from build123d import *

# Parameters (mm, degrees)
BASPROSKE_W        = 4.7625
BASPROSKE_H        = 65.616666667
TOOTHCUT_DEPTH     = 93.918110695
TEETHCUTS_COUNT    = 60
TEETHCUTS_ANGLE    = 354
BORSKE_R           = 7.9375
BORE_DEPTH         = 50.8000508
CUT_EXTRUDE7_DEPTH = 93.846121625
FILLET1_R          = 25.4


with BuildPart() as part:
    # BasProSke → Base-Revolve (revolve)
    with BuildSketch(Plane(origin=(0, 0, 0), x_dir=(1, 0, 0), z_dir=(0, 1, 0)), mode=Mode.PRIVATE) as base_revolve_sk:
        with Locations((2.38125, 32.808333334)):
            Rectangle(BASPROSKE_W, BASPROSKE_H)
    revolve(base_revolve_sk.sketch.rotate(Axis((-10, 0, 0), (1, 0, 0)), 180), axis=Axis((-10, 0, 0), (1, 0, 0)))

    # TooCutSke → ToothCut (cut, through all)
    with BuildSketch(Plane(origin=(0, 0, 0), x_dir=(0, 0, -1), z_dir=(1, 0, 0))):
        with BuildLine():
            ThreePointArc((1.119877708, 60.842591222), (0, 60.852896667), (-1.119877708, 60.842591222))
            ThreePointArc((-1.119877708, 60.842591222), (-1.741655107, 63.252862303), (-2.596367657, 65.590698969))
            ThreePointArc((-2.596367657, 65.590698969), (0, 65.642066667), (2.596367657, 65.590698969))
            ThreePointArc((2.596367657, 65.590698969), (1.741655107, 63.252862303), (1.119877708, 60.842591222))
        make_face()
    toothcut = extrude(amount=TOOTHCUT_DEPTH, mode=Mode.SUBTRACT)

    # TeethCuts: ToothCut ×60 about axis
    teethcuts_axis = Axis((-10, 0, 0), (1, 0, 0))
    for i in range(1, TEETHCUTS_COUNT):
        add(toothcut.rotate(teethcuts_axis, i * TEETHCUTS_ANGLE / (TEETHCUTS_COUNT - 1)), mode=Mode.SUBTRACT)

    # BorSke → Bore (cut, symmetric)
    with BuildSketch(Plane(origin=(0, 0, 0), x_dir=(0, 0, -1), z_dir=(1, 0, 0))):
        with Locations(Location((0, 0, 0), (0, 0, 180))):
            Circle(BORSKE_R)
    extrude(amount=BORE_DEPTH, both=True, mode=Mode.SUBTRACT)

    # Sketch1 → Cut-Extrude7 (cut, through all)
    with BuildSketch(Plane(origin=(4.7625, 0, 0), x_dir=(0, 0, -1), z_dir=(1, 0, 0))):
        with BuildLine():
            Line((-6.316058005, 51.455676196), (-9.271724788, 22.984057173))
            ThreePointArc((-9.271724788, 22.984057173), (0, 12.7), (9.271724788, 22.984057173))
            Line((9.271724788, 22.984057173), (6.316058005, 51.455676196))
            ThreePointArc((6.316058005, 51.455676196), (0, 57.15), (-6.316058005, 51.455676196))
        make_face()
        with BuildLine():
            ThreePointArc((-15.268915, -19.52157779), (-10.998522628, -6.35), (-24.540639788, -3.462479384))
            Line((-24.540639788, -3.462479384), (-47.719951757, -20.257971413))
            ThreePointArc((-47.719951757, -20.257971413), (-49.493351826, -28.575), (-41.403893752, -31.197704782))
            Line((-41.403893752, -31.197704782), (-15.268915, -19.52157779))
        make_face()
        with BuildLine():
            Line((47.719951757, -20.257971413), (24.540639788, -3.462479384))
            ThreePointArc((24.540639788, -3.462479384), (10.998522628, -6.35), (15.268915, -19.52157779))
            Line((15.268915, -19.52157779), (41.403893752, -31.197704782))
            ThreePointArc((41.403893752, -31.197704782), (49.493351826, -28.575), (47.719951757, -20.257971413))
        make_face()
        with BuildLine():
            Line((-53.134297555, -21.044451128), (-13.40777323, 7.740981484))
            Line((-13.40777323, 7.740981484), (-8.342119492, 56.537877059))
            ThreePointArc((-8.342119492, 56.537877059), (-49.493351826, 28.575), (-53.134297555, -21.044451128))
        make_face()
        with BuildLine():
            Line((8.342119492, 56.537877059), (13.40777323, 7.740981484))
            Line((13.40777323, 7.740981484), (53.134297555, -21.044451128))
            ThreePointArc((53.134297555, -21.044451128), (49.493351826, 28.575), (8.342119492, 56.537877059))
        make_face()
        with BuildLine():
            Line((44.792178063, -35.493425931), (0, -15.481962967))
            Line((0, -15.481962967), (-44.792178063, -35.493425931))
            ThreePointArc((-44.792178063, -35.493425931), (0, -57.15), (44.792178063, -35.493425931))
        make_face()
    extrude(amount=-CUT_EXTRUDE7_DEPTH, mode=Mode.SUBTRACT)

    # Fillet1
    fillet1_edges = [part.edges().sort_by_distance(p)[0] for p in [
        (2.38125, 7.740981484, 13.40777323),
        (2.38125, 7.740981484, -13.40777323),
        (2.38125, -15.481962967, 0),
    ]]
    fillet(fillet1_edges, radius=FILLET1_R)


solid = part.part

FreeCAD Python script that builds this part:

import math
import FreeCAD as App
import Part
import Sketcher
Q = App.Units.Quantity


def edges_at(feature, points):
    """Names of the edges that pass closest to the given points."""
    edges = feature.Shape.Edges
    near = lambda p: min(range(len(edges)), key=lambda i: edges[i].distToShape(Part.Vertex(*p))[0])
    return sorted({f"Edge{near(p) + 1}" for p in points})

doc = App.newDocument("Part")
params = doc.addObject("Spreadsheet::Sheet", "Params")
for row, (alias, value) in enumerate([
    ("sketch1_width", "0.1875 in"),
    ("revolution_angle", "360 deg"),
    ("sketch2_radius", "1 in"),
    ("sketch3_diameter", "0.625 in"),
    ("pocket2_length", "101.600102 mm"),
    ("sketch4_radius", "0.25 in"),
    ("sketch4_radius2", "2.25 in"),
    ("fillet_radius", "1 in"),
], start=1):
    params.set(f"A{row}", alias)
    params.set(f"B{row}", "=" + value)
    params.setAlias(f"B{row}", alias)

body = doc.addObject("PartDesign::Body", "Body")

# Sketch on XZ plane
sketch1 = body.newObject("Sketcher::SketchObject", "Sketch")
sketch1.AttachmentSupport = (doc.getObject("XZ_Plane"), [""])
sketch1.MapMode = "FlatFace"
sketch1.addGeometry(Part.LineSegment(App.Vector(0, -65.6, 0), App.Vector(0, 0, 0)), False)
sketch1.addGeometry(Part.LineSegment(App.Vector(0, 0, 0), App.Vector(4.8, 0, 0)), False)
sketch1.addGeometry(Part.LineSegment(App.Vector(4.8, 0, 0), App.Vector(4.8, -65.6, 0)), False)
sketch1.addGeometry(Part.LineSegment(App.Vector(4.8, -65.6, 0), App.Vector(0, -65.6, 0)), False)
sketch1.addConstraint(Sketcher.Constraint("Coincident", 0, 2, 1, 1))
sketch1.addConstraint(Sketcher.Constraint("Coincident", 1, 2, 2, 1))
sketch1.addConstraint(Sketcher.Constraint("Coincident", 2, 2, 3, 1))
sketch1.addConstraint(Sketcher.Constraint("Coincident", 3, 2, 0, 1))
sketch1.addConstraint(Sketcher.Constraint("Vertical", 0))
sketch1.addConstraint(Sketcher.Constraint("Horizontal", 1))
sketch1.addConstraint(Sketcher.Constraint("Vertical", 2))
sketch1.addConstraint(Sketcher.Constraint("Horizontal", 3))
sketch1.addConstraint(Sketcher.Constraint("Coincident", 0, 2, -1, 1))
sketch1.addConstraint(Sketcher.Constraint("DistanceX", 1, 1, 1, 2, Q("0.1875 in")))
sketch1.addConstraint(Sketcher.Constraint("DistanceY", 0, 1, 0, 2, 65.616667))
sketch1.setExpression("Constraints[9]", "Params.sketch1_width")
revolution = body.newObject("PartDesign::Revolution", "Revolution")
revolution.Profile = sketch1
revolution.ReferenceAxis = (sketch1, ["H_Axis"])
revolution.setExpression("Angle", "Params.revolution_angle")

# Sketch on YZ plane
sketch2 = body.newObject("Sketcher::SketchObject", "Sketch001")
sketch2.AttachmentSupport = (doc.getObject("YZ_Plane"), [""])
sketch2.MapMode = "FlatFace"
sketch2.addGeometry(Part.ArcOfCircle(Part.Circle(App.Vector(0, 0, 0), App.Vector(0, 0, 1), 60.9), math.radians(-1.05), math.radians(1.05)), False)
sketch2.addGeometry(Part.ArcOfCircle(Part.Circle(App.Vector(55.7, -26, 0), App.Vector(0, 0, 1), 25.4), math.radians(67.11), math.radians(78.34)), False)
sketch2.addGeometry(Part.ArcOfCircle(Part.Circle(App.Vector(0, 0, 0), App.Vector(0, 0, 1), 65.6), math.radians(-2.27), math.radians(2.27)), False)
sketch2.addGeometry(Part.ArcOfCircle(Part.Circle(App.Vector(55.7, 26, 0), App.Vector(0, 0, 1), 25.4), math.radians(-78.34), math.radians(-67.11)), False)
sketch2.addConstraint(Sketcher.Constraint("Coincident", 0, 1, 1, 2))
sketch2.addConstraint(Sketcher.Constraint("Coincident", 1, 1, 2, 1))
sketch2.addConstraint(Sketcher.Constraint("Coincident", 2, 2, 3, 2))
sketch2.addConstraint(Sketcher.Constraint("Coincident", 3, 1, 0, 2))
sketch2.addConstraint(Sketcher.Constraint("Coincident", 0, 3, -1, 1))
sketch2.addConstraint(Sketcher.Constraint("Coincident", 2, 3, -1, 1))
sketch2.addConstraint(Sketcher.Constraint("Equal", 1, 3))
sketch2.addConstraint(Sketcher.Constraint("Symmetric", 1, 3, 3, 3, -1))
sketch2.addConstraint(Sketcher.Constraint("Radius", 1, Q("1 in")))
sketch2.addConstraint(Sketcher.Constraint("Radius", 0, 60.852893))
sketch2.addConstraint(Sketcher.Constraint("Radius", 2, 65.642066))
sketch2.addConstraint(Sketcher.Constraint("DistanceX", -1, 1, 2, 2, 65.590699))
sketch2.addConstraint(Sketcher.Constraint("DistanceX", -1, 1, 1, 3, 55.710628))
sketch2.setExpression("Constraints[8]", "Params.sketch2_radius")
pocket1 = body.newObject("PartDesign::Pocket", "Pocket")
pocket1.Profile = sketch2
pocket1.Type = "ThroughAll"
pocket1.Reversed = True
doc.recompute()

polarpattern = body.newObject("PartDesign::PolarPattern", "PolarPattern")
polarpattern.Originals = [pocket1]
polarpattern.Axis = (doc.getObject("X_Axis"), [""])
polarpattern.Angle = 360
polarpattern.Occurrences = 60
body.Tip = polarpattern

# Sketch on YZ plane
sketch3 = body.newObject("Sketcher::SketchObject", "Sketch002")
sketch3.AttachmentSupport = (doc.getObject("YZ_Plane"), [""])
sketch3.MapMode = "FlatFace"
sketch3.addGeometry(Part.Circle(App.Vector(0, 0, 0), App.Vector(0, 0, 1), 8), False)
sketch3.addConstraint(Sketcher.Constraint("Coincident", 0, 3, -1, 1))
sketch3.addConstraint(Sketcher.Constraint("Diameter", 0, Q("0.625 in")))
sketch3.setExpression("Constraints[1]", "Params.sketch3_diameter")
pocket2 = body.newObject("PartDesign::Pocket", "Pocket001")
pocket2.Profile = sketch3
pocket2.setExpression("Length", "Params.pocket2_length")
pocket2.Midplane = True

# Sketch on YZ plane
sketch4 = body.newObject("Sketcher::SketchObject", "Sketch003")
sketch4.AttachmentSupport = (doc.getObject("YZ_Plane"), [""])
sketch4.MapMode = "FlatFace"
sketch4.AttachmentOffset = App.Placement(App.Vector(0, 0, 0.1875 * 25.4), App.Rotation())
sketch4.addGeometry(Part.LineSegment(App.Vector(51, 6, 0), App.Vector(23, 9, 0)), False)
sketch4.addGeometry(Part.ArcOfCircle(Part.Circle(App.Vector(22, 0, 0), App.Vector(0, 0, 1), 9), math.radians(84), math.radians(276)), False)
sketch4.addGeometry(Part.LineSegment(App.Vector(23, -9, 0), App.Vector(51, -6, 0)), False)
sketch4.addGeometry(Part.ArcOfCircle(Part.Circle(App.Vector(51, 0, 0), App.Vector(0, 0, 1), 6), math.radians(-84), math.radians(84)), False)
sketch4.addGeometry(Part.ArcOfCircle(Part.Circle(App.Vector(-11, 19, 0), App.Vector(0, 0, 1), 9), math.radians(-156), math.radians(36)), False)
sketch4.addGeometry(Part.LineSegment(App.Vector(-3, 25, 0), App.Vector(-20, 48, 0)), False)
sketch4.addGeometry(Part.ArcOfCircle(Part.Circle(App.Vector(-25, 44, 0), App.Vector(0, 0, 1), 6), math.radians(36), math.radians(204)), False)
sketch4.addGeometry(Part.LineSegment(App.Vector(-31, 41, 0), App.Vector(-20, 15, 0)), False)
sketch4.addGeometry(Part.LineSegment(App.Vector(-20, -48, 0), App.Vector(-3, -25, 0)), False)
sketch4.addGeometry(Part.ArcOfCircle(Part.Circle(App.Vector(-11, -19, 0), App.Vector(0, 0, 1), 9), math.radians(-36), math.radians(156)), False)
sketch4.addGeometry(Part.LineSegment(App.Vector(-20, -15, 0), App.Vector(-31, -41, 0)), False)
sketch4.addGeometry(Part.ArcOfCircle(Part.Circle(App.Vector(-25, -44, 0), App.Vector(0, 0, 1), 6), math.radians(156), math.radians(324)), False)
sketch4.addGeometry(Part.LineSegment(App.Vector(-21, 53, 0), App.Vector(8, 13, 0)), False)
sketch4.addGeometry(Part.LineSegment(App.Vector(8, 13, 0), App.Vector(57, 8, 0)), False)
sketch4.addGeometry(Part.ArcOfCircle(Part.Circle(App.Vector(0, 0, 0), App.Vector(0, 0, 1), 57), math.radians(8), math.radians(112)), False)
sketch4.addGeometry(Part.LineSegment(App.Vector(57, -8, 0), App.Vector(8, -13, 0)), False)
sketch4.addGeometry(Part.LineSegment(App.Vector(8, -13, 0), App.Vector(-21, -53, 0)), False)
sketch4.addGeometry(Part.ArcOfCircle(Part.Circle(App.Vector(0, 0, 0), App.Vector(0, 0, 1), 57), math.radians(-112), math.radians(-8)), False)
sketch4.addGeometry(Part.LineSegment(App.Vector(-35, -45, 0), App.Vector(-15, 0, 0)), False)
sketch4.addGeometry(Part.LineSegment(App.Vector(-15, 0, 0), App.Vector(-35, 45, 0)), False)
sketch4.addGeometry(Part.ArcOfCircle(Part.Circle(App.Vector(0, 0, 0), App.Vector(0, 0, 1), 57), math.radians(128), math.radians(232)), False)
sketch4.addConstraint(Sketcher.Constraint("Tangent", 0, 2, 1, 1))
sketch4.addConstraint(Sketcher.Constraint("Tangent", 1, 2, 2, 1))
sketch4.addConstraint(Sketcher.Constraint("Tangent", 2, 2, 3, 1))
sketch4.addConstraint(Sketcher.Constraint("Tangent", 3, 2, 0, 1))
sketch4.addConstraint(Sketcher.Constraint("Tangent", 4, 2, 5, 1))
sketch4.addConstraint(Sketcher.Constraint("Tangent", 5, 2, 6, 1))
sketch4.addConstraint(Sketcher.Constraint("Tangent", 6, 2, 7, 1))
sketch4.addConstraint(Sketcher.Constraint("Tangent", 7, 2, 4, 1))
sketch4.addConstraint(Sketcher.Constraint("Tangent", 8, 2, 9, 1))
sketch4.addConstraint(Sketcher.Constraint("Tangent", 9, 2, 10, 1))
sketch4.addConstraint(Sketcher.Constraint("Tangent", 10, 2, 11, 1))
sketch4.addConstraint(Sketcher.Constraint("Tangent", 11, 2, 8, 1))
sketch4.addConstraint(Sketcher.Constraint("Coincident", 12, 2, 13, 1))
sketch4.addConstraint(Sketcher.Constraint("Coincident", 13, 2, 14, 1))
sketch4.addConstraint(Sketcher.Constraint("Coincident", 14, 2, 12, 1))
sketch4.addConstraint(Sketcher.Constraint("Coincident", 15, 2, 16, 1))
sketch4.addConstraint(Sketcher.Constraint("Coincident", 16, 2, 17, 1))
sketch4.addConstraint(Sketcher.Constraint("Coincident", 17, 2, 15, 1))
sketch4.addConstraint(Sketcher.Constraint("Coincident", 18, 2, 19, 1))
sketch4.addConstraint(Sketcher.Constraint("Coincident", 19, 2, 20, 1))
sketch4.addConstraint(Sketcher.Constraint("Coincident", 20, 2, 18, 1))
sketch4.addConstraint(Sketcher.Constraint("Coincident", 14, 3, -1, 1))
sketch4.addConstraint(Sketcher.Constraint("Coincident", 17, 3, -1, 1))
sketch4.addConstraint(Sketcher.Constraint("Coincident", 20, 3, -1, 1))
sketch4.addConstraint(Sketcher.Constraint("Equal", 1, 4))
sketch4.addConstraint(Sketcher.Constraint("Equal", 3, 6))
sketch4.addConstraint(Sketcher.Constraint("Equal", 4, 9))
sketch4.addConstraint(Sketcher.Constraint("Equal", 6, 11))
sketch4.addConstraint(Sketcher.Constraint("Equal", 14, 17))
sketch4.addConstraint(Sketcher.Constraint("Equal", 17, 20))
sketch4.addConstraint(Sketcher.Constraint("Symmetric", 4, 3, 9, 3, -1))
sketch4.addConstraint(Sketcher.Constraint("Symmetric", 6, 3, 11, 3, -1))
sketch4.addConstraint(Sketcher.Constraint("Symmetric", 0, 2, 1, 2, -1))
sketch4.addConstraint(Sketcher.Constraint("Symmetric", 12, 2, 15, 2, -1))
sketch4.addConstraint(Sketcher.Constraint("PointOnObject", 18, 2, -1))
sketch4.addConstraint(Sketcher.Constraint("Parallel", 5, 12))
sketch4.addConstraint(Sketcher.Constraint("Parallel", 0, 13))
sketch4.addConstraint(Sketcher.Constraint("Parallel", 2, 15))
sketch4.addConstraint(Sketcher.Constraint("Parallel", 8, 16))
sketch4.addConstraint(Sketcher.Constraint("Parallel", 10, 18))
sketch4.addConstraint(Sketcher.Constraint("Parallel", 7, 19))
sketch4.addConstraint(Sketcher.Constraint("Equal", 2, 5))
sketch4.addConstraint(Sketcher.Constraint("Equal", 12, 13))
sketch4.addConstraint(Sketcher.Constraint("Equal", 16, 18))
sketch4.addConstraint(Sketcher.Constraint("Radius", 3, Q("0.25 in")))
sketch4.addConstraint(Sketcher.Constraint("Radius", 14, Q("2.25 in")))
sketch4.addConstraint(Sketcher.Constraint("DistanceX", -1, 1, 3, 3, Q("2 in")))
sketch4.addConstraint(Sketcher.Constraint("DistanceX", 6, 3, -1, 1, Q("1 in")))
sketch4.addConstraint(Sketcher.Constraint("Radius", 1, 9.32155))
sketch4.addConstraint(Sketcher.Constraint("DistanceY", 11, 2, 9, 2, Q("1.2775999 in")))
sketch4.addConstraint(Sketcher.Constraint("DistanceX", 7, 2, 4, 2, 16.059098))
sketch4.addConstraint(Sketcher.Constraint("DistanceX", 3, 2, 13, 2, 5.082201))
sketch4.addConstraint(Sketcher.Constraint("DistanceY", -1, 1, 4, 3, 19.071222))
sketch4.setExpression("Constraints[44]", "Params.sketch4_radius")
sketch4.setExpression("Constraints[45]", "Params.sketch4_radius2")
pocket3 = body.newObject("PartDesign::Pocket", "Pocket002")
pocket3.Profile = sketch4
pocket3.Type = "ThroughAll"
doc.recompute()

fillet = body.newObject("PartDesign::Fillet", "Fillet")
fillet.Base = (pocket3, edges_at(pocket3, [(2.381, 7.741, 13.408), (2.381, 7.741, -13.408), (2.381, -15.482, 0)]))
fillet.setExpression("Radius", "Params.fillet_radius")

doc.recompute()
